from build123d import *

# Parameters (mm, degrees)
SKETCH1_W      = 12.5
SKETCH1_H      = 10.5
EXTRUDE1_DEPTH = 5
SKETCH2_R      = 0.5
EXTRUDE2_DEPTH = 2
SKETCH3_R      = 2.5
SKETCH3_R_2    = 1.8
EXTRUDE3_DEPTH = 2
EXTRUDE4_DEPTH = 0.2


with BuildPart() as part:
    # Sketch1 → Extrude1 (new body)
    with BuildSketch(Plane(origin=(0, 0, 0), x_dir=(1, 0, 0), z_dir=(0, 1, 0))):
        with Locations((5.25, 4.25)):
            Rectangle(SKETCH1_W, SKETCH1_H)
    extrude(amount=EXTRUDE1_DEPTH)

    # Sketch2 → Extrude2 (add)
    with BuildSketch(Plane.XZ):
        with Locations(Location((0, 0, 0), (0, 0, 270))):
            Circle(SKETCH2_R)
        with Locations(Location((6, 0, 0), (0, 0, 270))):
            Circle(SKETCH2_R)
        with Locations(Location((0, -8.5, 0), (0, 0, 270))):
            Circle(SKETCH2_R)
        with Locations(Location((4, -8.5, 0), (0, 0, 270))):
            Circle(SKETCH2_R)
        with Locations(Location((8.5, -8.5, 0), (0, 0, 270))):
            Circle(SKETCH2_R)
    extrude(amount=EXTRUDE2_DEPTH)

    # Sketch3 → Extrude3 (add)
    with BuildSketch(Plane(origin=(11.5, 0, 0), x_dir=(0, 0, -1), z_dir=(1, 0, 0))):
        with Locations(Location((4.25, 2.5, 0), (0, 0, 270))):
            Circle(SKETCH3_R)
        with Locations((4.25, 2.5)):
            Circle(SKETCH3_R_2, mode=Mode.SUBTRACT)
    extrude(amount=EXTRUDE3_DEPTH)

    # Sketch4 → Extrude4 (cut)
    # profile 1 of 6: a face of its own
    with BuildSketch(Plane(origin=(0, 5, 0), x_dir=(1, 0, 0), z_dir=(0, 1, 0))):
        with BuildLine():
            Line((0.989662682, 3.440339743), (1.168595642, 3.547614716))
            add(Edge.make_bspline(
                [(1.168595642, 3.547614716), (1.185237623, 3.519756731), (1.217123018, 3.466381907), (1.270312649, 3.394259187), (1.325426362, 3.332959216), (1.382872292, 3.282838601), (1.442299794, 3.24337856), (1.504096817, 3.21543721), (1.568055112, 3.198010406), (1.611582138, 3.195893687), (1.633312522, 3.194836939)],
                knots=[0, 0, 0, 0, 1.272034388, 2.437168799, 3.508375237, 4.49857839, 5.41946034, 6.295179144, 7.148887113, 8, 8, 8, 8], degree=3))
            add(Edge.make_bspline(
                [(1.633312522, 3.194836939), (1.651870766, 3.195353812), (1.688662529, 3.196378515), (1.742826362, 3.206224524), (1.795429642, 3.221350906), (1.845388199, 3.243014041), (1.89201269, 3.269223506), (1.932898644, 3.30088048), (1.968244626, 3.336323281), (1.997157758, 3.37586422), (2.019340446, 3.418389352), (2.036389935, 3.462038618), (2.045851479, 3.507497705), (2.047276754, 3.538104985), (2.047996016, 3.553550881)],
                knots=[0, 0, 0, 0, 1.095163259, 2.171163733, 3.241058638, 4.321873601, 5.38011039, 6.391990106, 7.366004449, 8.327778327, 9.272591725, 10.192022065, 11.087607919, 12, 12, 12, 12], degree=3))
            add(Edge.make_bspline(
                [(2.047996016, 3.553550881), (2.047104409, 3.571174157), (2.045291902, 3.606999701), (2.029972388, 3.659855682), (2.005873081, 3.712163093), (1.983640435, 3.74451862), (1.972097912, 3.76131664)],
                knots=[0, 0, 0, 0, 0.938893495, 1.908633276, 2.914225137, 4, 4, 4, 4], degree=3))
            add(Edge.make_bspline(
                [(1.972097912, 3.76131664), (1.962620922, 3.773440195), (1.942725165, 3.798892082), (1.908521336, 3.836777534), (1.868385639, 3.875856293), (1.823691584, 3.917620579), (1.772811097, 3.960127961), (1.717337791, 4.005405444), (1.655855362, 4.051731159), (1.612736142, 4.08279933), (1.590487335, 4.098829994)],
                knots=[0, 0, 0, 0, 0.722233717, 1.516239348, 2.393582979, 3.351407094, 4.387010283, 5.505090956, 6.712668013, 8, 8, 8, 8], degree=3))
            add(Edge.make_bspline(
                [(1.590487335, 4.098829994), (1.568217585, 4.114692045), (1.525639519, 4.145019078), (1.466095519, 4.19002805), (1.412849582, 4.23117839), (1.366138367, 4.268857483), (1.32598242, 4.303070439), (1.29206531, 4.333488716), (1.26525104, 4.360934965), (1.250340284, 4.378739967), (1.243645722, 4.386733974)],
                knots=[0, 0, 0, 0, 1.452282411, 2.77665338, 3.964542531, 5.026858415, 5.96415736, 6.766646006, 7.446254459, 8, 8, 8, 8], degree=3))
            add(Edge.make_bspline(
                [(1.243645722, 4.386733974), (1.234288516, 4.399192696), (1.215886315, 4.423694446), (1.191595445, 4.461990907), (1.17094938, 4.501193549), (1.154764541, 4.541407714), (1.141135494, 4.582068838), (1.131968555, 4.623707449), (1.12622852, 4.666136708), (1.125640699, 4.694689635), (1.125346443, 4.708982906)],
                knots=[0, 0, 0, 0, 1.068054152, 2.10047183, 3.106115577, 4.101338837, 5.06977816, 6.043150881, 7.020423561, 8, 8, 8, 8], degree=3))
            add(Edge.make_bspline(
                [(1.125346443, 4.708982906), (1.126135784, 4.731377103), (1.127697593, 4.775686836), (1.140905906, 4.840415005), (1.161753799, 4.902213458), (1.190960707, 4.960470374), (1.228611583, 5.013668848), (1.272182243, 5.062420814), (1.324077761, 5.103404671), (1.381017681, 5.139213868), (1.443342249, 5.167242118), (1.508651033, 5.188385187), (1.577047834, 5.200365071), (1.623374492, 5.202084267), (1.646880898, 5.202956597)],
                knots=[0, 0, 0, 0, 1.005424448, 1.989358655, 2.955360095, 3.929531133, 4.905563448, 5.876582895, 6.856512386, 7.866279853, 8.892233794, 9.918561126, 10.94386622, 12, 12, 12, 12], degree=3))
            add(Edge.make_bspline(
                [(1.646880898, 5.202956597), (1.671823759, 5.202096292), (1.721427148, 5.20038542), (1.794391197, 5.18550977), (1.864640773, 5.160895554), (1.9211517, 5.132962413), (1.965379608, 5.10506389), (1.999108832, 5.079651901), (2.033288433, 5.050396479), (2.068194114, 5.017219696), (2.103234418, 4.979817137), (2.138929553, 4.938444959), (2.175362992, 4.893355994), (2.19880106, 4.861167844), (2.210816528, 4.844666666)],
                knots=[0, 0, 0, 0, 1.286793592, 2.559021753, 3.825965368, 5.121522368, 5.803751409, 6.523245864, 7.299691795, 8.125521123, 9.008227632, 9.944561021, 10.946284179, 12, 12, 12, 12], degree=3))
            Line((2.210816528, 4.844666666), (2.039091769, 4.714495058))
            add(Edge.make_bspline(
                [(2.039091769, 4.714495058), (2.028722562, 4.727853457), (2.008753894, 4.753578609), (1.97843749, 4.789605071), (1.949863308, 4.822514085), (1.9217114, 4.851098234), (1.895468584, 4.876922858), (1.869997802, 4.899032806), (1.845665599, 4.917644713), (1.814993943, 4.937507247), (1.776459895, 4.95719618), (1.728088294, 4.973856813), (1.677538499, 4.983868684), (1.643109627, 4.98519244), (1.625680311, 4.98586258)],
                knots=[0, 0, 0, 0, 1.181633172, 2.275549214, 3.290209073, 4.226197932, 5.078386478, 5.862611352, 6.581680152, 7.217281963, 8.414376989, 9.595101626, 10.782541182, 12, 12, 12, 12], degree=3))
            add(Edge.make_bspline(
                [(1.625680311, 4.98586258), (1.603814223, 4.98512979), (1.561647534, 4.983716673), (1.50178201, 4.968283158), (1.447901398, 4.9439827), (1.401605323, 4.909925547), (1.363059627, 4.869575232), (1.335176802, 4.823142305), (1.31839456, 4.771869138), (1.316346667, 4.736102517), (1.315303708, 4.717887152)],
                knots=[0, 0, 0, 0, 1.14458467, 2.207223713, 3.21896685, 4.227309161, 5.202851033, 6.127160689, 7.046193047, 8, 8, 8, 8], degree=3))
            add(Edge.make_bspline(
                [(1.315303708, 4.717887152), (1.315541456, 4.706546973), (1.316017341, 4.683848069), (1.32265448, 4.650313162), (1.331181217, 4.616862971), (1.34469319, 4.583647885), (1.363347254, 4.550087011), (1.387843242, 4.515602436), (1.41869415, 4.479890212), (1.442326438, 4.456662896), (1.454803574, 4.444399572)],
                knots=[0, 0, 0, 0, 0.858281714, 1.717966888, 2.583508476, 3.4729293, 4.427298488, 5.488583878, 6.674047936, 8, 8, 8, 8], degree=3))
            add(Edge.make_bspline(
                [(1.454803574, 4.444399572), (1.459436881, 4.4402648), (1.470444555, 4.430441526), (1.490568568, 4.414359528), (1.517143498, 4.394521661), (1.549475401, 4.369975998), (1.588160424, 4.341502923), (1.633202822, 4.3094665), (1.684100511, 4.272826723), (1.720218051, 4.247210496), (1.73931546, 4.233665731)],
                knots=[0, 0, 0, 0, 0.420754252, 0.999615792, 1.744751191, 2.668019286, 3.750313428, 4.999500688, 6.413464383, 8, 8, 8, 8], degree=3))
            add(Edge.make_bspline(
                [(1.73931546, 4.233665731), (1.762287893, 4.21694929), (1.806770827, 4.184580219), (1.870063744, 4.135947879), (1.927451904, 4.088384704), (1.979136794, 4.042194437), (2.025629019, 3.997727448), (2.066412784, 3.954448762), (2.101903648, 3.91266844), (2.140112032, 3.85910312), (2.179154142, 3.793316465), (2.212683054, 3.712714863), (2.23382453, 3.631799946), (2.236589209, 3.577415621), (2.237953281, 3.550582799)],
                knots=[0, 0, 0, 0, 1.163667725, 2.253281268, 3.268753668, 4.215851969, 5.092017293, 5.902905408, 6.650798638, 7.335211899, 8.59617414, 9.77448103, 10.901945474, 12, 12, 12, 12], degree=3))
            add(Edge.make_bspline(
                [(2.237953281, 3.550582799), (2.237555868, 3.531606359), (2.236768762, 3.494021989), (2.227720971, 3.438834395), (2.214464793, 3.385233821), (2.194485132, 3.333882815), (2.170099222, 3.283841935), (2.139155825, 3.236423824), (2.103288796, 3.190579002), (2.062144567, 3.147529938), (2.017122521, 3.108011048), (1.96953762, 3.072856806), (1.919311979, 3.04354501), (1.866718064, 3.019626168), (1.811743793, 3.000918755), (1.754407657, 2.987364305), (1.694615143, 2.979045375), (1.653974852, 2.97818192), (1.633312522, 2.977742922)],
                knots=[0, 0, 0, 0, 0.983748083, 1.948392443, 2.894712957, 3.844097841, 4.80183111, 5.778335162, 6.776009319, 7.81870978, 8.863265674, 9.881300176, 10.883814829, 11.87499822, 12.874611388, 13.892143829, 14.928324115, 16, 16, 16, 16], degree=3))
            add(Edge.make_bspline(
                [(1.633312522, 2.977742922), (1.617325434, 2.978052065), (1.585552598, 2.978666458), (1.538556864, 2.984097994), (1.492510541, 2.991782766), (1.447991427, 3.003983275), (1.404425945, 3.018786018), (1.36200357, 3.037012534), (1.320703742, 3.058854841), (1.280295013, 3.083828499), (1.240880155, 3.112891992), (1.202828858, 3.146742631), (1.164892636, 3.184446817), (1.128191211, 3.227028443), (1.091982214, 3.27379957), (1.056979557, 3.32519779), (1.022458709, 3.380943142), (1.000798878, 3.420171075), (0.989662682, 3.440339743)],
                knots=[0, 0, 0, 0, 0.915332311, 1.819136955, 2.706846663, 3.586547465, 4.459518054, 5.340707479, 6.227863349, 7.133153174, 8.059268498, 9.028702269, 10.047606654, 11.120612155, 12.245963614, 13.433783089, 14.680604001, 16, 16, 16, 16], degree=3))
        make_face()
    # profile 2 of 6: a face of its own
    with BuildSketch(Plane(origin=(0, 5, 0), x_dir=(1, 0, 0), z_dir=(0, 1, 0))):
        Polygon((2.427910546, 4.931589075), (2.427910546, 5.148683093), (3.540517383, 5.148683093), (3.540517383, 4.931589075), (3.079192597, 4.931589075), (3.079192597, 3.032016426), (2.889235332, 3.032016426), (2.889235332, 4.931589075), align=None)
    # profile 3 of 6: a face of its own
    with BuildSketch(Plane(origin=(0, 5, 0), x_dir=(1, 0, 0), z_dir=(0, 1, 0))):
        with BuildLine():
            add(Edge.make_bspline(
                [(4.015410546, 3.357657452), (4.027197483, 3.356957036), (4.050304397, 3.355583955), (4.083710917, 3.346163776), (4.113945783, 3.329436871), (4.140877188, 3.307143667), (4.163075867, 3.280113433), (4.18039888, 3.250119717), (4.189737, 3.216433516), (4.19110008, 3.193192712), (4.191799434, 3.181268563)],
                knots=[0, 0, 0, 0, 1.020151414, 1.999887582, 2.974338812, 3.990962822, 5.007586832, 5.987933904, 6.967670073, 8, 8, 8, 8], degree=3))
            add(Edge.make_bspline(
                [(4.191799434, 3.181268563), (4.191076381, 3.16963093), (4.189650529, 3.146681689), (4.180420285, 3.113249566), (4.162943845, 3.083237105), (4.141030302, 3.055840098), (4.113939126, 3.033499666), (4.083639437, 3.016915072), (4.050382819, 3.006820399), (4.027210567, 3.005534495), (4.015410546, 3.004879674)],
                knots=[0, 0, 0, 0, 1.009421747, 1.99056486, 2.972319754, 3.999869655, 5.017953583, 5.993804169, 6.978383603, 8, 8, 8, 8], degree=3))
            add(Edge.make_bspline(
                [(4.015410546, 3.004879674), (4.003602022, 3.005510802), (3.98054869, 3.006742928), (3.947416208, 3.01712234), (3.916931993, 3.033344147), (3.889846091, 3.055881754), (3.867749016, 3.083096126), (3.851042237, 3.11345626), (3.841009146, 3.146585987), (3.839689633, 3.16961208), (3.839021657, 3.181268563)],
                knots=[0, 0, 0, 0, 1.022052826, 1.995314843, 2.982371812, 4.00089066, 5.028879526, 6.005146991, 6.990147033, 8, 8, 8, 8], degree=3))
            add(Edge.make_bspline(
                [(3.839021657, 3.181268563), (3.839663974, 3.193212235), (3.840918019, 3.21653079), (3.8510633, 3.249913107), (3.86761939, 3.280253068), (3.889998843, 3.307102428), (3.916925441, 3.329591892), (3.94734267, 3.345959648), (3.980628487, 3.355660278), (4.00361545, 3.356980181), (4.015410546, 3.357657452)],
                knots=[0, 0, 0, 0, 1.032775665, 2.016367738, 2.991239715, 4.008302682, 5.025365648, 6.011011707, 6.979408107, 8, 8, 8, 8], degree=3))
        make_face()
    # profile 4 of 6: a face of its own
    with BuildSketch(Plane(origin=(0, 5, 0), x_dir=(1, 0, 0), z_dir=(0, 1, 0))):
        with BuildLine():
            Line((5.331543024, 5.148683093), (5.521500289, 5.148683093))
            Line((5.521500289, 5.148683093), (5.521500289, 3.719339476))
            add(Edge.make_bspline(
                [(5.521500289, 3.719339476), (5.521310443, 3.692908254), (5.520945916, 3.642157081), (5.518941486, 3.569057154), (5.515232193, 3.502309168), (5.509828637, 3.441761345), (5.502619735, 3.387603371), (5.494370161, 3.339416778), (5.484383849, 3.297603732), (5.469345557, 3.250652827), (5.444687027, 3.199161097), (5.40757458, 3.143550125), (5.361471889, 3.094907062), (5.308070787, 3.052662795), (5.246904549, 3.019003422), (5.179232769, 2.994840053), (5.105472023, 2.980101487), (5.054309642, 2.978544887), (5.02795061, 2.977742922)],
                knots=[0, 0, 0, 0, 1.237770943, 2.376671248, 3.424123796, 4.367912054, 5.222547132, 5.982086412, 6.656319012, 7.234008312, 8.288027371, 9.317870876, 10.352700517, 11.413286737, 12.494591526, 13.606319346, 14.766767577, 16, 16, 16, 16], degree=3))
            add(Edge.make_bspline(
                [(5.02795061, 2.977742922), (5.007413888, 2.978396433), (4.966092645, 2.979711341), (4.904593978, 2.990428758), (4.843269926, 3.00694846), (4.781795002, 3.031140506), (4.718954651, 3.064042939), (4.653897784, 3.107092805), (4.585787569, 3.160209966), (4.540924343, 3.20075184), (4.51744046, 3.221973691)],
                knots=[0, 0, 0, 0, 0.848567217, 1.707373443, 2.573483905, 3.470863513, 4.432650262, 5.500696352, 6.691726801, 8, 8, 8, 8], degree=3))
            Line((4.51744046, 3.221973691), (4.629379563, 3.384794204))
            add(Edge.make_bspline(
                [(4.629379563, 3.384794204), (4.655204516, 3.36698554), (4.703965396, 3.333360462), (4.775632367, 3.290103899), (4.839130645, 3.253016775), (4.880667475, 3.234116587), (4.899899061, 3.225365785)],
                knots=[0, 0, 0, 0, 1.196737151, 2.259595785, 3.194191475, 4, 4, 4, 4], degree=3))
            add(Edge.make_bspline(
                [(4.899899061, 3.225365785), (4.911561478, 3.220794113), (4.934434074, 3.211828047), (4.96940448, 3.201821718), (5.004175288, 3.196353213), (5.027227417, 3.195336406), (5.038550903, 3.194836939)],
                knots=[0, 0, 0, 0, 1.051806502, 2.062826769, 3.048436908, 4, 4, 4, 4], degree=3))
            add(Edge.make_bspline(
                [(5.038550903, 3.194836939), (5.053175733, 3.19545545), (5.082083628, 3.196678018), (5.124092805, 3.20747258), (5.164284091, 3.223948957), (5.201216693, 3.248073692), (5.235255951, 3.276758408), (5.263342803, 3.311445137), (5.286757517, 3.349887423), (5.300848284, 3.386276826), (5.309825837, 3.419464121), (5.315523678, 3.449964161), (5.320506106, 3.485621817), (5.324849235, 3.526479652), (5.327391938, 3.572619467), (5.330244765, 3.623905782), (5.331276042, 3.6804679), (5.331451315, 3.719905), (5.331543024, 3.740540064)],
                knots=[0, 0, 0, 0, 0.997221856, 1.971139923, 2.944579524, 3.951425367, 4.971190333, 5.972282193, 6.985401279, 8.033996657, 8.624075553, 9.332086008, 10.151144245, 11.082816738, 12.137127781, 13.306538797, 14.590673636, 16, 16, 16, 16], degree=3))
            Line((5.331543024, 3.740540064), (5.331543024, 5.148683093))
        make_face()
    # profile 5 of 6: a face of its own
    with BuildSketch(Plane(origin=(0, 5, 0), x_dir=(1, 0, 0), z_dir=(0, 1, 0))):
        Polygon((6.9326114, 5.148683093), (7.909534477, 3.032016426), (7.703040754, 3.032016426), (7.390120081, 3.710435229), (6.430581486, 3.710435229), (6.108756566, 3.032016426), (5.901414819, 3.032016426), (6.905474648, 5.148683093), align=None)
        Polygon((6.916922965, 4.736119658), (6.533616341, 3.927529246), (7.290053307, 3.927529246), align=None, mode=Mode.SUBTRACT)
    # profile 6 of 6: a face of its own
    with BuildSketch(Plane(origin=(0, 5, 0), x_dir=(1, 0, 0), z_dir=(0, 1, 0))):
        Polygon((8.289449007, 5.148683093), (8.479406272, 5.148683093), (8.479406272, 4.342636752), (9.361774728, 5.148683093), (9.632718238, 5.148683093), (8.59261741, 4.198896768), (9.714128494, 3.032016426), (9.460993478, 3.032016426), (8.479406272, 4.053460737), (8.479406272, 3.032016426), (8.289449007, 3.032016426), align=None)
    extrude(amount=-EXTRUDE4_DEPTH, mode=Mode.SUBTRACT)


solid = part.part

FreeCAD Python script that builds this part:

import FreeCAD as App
import Part
import Sketcher

doc = App.newDocument("Part")
params = doc.addObject("Spreadsheet::Sheet", "Params")
for row, (alias, value) in enumerate([
    ("sketch1_width", "12.5 mm"),
    ("sketch1_height", "10.5 mm"),
    ("pad1_length", "5 mm"),
    ("sketch2_diameter", "1 mm"),
    ("pad2_length", "2 mm"),
    ("sketch3_diameter", "5 mm"),
    ("sketch3_diameter2", "3.6 mm"),
    ("pad3_length", "2 mm"),
    ("pocket1_length", "0.2 mm"),
], start=1):
    params.set(f"A{row}", alias)
    params.set(f"B{row}", "=" + value)
    params.setAlias(f"B{row}", alias)

body = doc.addObject("PartDesign::Body", "Body")

# Sketch on XZ plane
sketch1 = doc.addObject("Sketcher::SketchObject", "Sketch")
body.addObject(sketch1)
sketch1.AttachmentSupport = (doc.XZ_Plane, [""])
sketch1.MapMode = "FlatFace"
sketch1.addGeometry(Part.LineSegment(App.Vector(-1, -10, 0), App.Vector(-1, 1, 0)), False)
sketch1.addGeometry(Part.LineSegment(App.Vector(-1, 1, 0), App.Vector(12, 1, 0)), False)
sketch1.addGeometry(Part.LineSegment(App.Vector(12, 1, 0), App.Vector(12, -10, 0)), False)
sketch1.addGeometry(Part.LineSegment(App.Vector(12, -10, 0), App.Vector(-1, -10, 0)), False)
sketch1.addConstraint(Sketcher.Constraint("Coincident", 0, 2, 1, 1))
sketch1.addConstraint(Sketcher.Constraint("Coincident", 1, 2, 2, 1))
sketch1.addConstraint(Sketcher.Constraint("Coincident", 2, 2, 3, 1))
sketch1.addConstraint(Sketcher.Constraint("Coincident", 3, 2, 0, 1))
sketch1.addConstraint(Sketcher.Constraint("Vertical", 0))
sketch1.addConstraint(Sketcher.Constraint("Horizontal", 1))
sketch1.addConstraint(Sketcher.Constraint("Vertical", 2))
sketch1.addConstraint(Sketcher.Constraint("Horizontal", 3))
sketch1.addConstraint(Sketcher.Constraint("DistanceX", 1, 1, 1, 2, 12.5))
sketch1.addConstraint(Sketcher.Constraint("DistanceY", 0, 1, 0, 2, 10.5))
sketch1.addConstraint(Sketcher.Constraint("DistanceX", 0, 2, -1, 1, 1.0))
sketch1.addConstraint(Sketcher.Constraint("DistanceY", -1, 1, 0, 2, 1.0))
sketch1.setExpression("Constraints[8]", "Params.sketch1_width")
sketch1.setExpression("Constraints[9]", "Params.sketch1_height")
pad1 = doc.addObject("PartDesign::Pad", "Pad")
body.addObject(pad1)
pad1.Profile = sketch1
pad1.setExpression("Length", "Params.pad1_length")
pad1.Reversed = True

# Sketch on XZ plane
sketch2 = doc.addObject("Sketcher::SketchObject", "Sketch001")
body.addObject(sketch2)
sketch2.AttachmentSupport = (doc.XZ_Plane, [""])
sketch2.MapMode = "FlatFace"
sketch2.addGeometry(Part.Circle(App.Vector(0, 0, 0), App.Vector(0, 0, 1), 0.5), False)
sketch2.addGeometry(Part.Circle(App.Vector(6, 0, 0), App.Vector(0, 0, 1), 0.5), False)
sketch2.addGeometry(Part.Circle(App.Vector(0, -8.5, 0), App.Vector(0, 0, 1), 0.5), False)
sketch2.addGeometry(Part.Circle(App.Vector(4, -8.5, 0), App.Vector(0, 0, 1), 0.5), False)
sketch2.addGeometry(Part.Circle(App.Vector(8.5, -8.5, 0), App.Vector(0, 0, 1), 0.5), False)
sketch2.addConstraint(Sketcher.Constraint("Coincident", 0, 3, -1, 1))
sketch2.addConstraint(Sketcher.Constraint("Equal", 0, 1))
sketch2.addConstraint(Sketcher.Constraint("Equal", 1, 2))
sketch2.addConstraint(Sketcher.Constraint("Equal", 2, 3))
sketch2.addConstraint(Sketcher.Constraint("Equal", 3, 4))
sketch2.addConstraint(Sketcher.Constraint("PointOnObject", 1, 3, -1))
sketch2.addConstraint(Sketcher.Constraint("PointOnObject", 2, 3, -2))
sketch2.addConstraint(Sketcher.Constraint("Horizontal", 2, 3, 3, 3))
sketch2.addConstraint(Sketcher.Constraint("Horizontal", 3, 3, 4, 3))
sketch2.addConstraint(Sketcher.Constraint("Diameter", 0, 1.0))
sketch2.addConstraint(Sketcher.Constraint("DistanceX", -1, 1, 1, 3, 6.0))
sketch2.addConstraint(Sketcher.Constraint("DistanceX", -1, 1, 3, 3, 4.0))
sketch2.addConstraint(Sketcher.Constraint("DistanceY", 2, 3, -1, 1, 8.5))
sketch2.addConstraint(Sketcher.Constraint("DistanceX", -1, 1, 4, 3, 8.5))
sketch2.setExpression("Constraints[9]", "Params.sketch2_diameter")
pad2 = doc.addObject("PartDesign::Pad", "Pad001")
body.addObject(pad2)
pad2.Profile = sketch2
pad2.setExpression("Length", "Params.pad2_length")

# Sketch on YZ plane
sketch3 = doc.addObject("Sketcher::SketchObject", "Sketch002")
body.addObject(sketch3)
sketch3.AttachmentSupport = (doc.YZ_Plane, [""])
sketch3.MapMode = "FlatFace"
sketch3.AttachmentOffset = App.Placement(App.Vector(0, 0, 11.5), App.Rotation())
sketch3.addGeometry(Part.Circle(App.Vector(2.5, -4.2, 0), App.Vector(0, 0, 1), 2.5), False)
sketch3.addGeometry(Part.Circle(App.Vector(2.5, -4.2, 0), App.Vector(0, 0, 1), 1.8), False)
sketch3.addConstraint(Sketcher.Constraint("Coincident", 1, 3, 0, 3))
sketch3.addConstraint(Sketcher.Constraint("Diameter", 0, 5.0))
sketch3.addConstraint(Sketcher.Constraint("Diameter", 1, 3.6))
sketch3.addConstraint(Sketcher.Constraint("DistanceX", -1, 1, 0, 3, 2.5))
sketch3.addConstraint(Sketcher.Constraint("DistanceY", 0, 3, -1, 1, 4.25))
sketch3.setExpression("Constraints[1]", "Params.sketch3_diameter")
sketch3.setExpression("Constraints[2]", "Params.sketch3_diameter2")
pad3 = doc.addObject("PartDesign::Pad", "Pad002")
body.addObject(pad3)
pad3.Profile = sketch3
pad3.setExpression("Length", "Params.pad3_length")

# Sketch on XZ plane
sketch4 = doc.addObject("Sketcher::SketchObject", "Sketch003")
body.addObject(sketch4)
sketch4.AttachmentSupport = (doc.XZ_Plane, [""])
sketch4.MapMode = "FlatFace"
sketch4.AttachmentOffset = App.Placement(App.Vector(0, 0, -5), App.Rotation())
sketch4.addGeometry(Part.LineSegment(App.Vector(1.168596, -3.547615, 0), App.Vector(0.989663, -3.44034, 0)), False)
sketch4.addGeometry(Part.BSplineCurve([App.Vector(1.633313, -2.977743, 0), App.Vector(1.617325, -2.978052, 0), App.Vector(1.585553, -2.978666, 0), App.Vector(1.538557, -2.984098, 0), App.Vector(1.492511, -2.991783, 0), App.Vector(1.447991, -3.003983, 0), App.Vector(1.404426, -3.018786, 0), App.Vector(1.362004, -3.037013, 0), App.Vector(1.320704, -3.058855, 0), App.Vector(1.280295, -3.083828, 0), App.Vector(1.24088, -3.112892, 0), App.Vector(1.202829, -3.146743, 0), App.Vector(1.164893, -3.184447, 0), App.Vector(1.128191, -3.227028, 0), App.Vector(1.091982, -3.2738, 0), App.Vector(1.05698, -3.325198, 0), App.Vector(1.022459, -3.380943, 0), App.Vector(1.000799, -3.420171, 0), App.Vector(0.989663, -3.44034, 0)], [4, 1, 1, 1, 1, 1, 1, 1, 1, 1, 1, 1, 1, 1, 1, 1, 4], [0, 0.915332311, 1.819136955, 2.706846663, 3.586547465, 4.459518054, 5.340707479, 6.227863349, 7.133153174, 8.059268498, 9.028702269, 10.047606654, 11.120612155, 12.245963614, 13.433783089, 14.680604001, 16], False, 3, [1, 1, 1, 1, 1, 1, 1, 1, 1, 1, 1, 1, 1, 1, 1, 1, 1, 1, 1], False), False)
sketch4.addGeometry(Part.BSplineCurve([App.Vector(2.237953, -3.550583, 0), App.Vector(2.237556, -3.531606, 0), App.Vector(2.236769, -3.494022, 0), App.Vector(2.227721, -3.438834, 0), App.Vector(2.214465, -3.385234, 0), App.Vector(2.194485, -3.333883, 0), App.Vector(2.170099, -3.283842, 0), App.Vector(2.139156, -3.236424, 0), App.Vector(2.103289, -3.190579, 0), App.Vector(2.062145, -3.14753, 0), App.Vector(2.017123, -3.108011, 0), App.Vector(1.969538, -3.072857, 0), App.Vector(1.919312, -3.043545, 0), App.Vector(1.866718, -3.019626, 0), App.Vector(1.811744, -3.000919, 0), App.Vector(1.754408, -2.987364, 0), App.Vector(1.694615, -2.979045, 0), App.Vector(1.653975, -2.978182, 0), App.Vector(1.633313, -2.977743, 0)], [4, 1, 1, 1, 1, 1, 1, 1, 1, 1, 1, 1, 1, 1, 1, 1, 4], [0, 0.983748083, 1.948392443, 2.894712957, 3.844097841, 4.80183111, 5.778335162, 6.776009319, 7.81870978, 8.863265674, 9.881300176, 10.883814829, 11.87499822, 12.874611388, 13.892143829, 14.928324115, 16], False, 3, [1, 1, 1, 1, 1, 1, 1, 1, 1, 1, 1, 1, 1, 1, 1, 1, 1, 1, 1], False), False)
sketch4.addGeometry(Part.BSplineCurve([App.Vector(1.739315, -4.233666, 0), App.Vector(1.762288, -4.216949, 0), App.Vector(1.806771, -4.18458, 0), App.Vector(1.870064, -4.135948, 0), App.Vector(1.927452, -4.088385, 0), App.Vector(1.979137, -4.042194, 0), App.Vector(2.025629, -3.997727, 0), App.Vector(2.066413, -3.954449, 0), App.Vector(2.101904, -3.912668, 0), App.Vector(2.140112, -3.859103, 0), App.Vector(2.179154, -3.793316, 0), App.Vector(2.212683, -3.712715, 0), App.Vector(2.233825, -3.6318, 0), App.Vector(2.236589, -3.577416, 0), App.Vector(2.237953, -3.550583, 0)], [4, 1, 1, 1, 1, 1, 1, 1, 1, 1, 1, 1, 4], [0, 1.163667725, 2.253281268, 3.268753668, 4.215851969, 5.092017293, 5.902905408, 6.650798638, 7.335211899, 8.59617414, 9.77448103, 10.901945474, 12], False, 3, [1, 1, 1, 1, 1, 1, 1, 1, 1, 1, 1, 1, 1, 1, 1], False), False)
sketch4.addGeometry(Part.BSplineCurve([App.Vector(1.454804, -4.4444, 0), App.Vector(1.459437, -4.440265, 0), App.Vector(1.470445, -4.430442, 0), App.Vector(1.490569, -4.41436, 0), App.Vector(1.517143, -4.394522, 0), App.Vector(1.549475, -4.369976, 0), App.Vector(1.58816, -4.341503, 0), App.Vector(1.633203, -4.309467, 0), App.Vector(1.684101, -4.272827, 0), App.Vector(1.720218, -4.24721, 0), App.Vector(1.739315, -4.233666, 0)], [4, 1, 1, 1, 1, 1, 1, 1, 4], [0, 0.420754252, 0.999615792, 1.744751191, 2.668019286, 3.750313428, 4.999500688, 6.413464383, 8], False, 3, [1, 1, 1, 1, 1, 1, 1, 1, 1, 1, 1], False), False)
sketch4.addGeometry(Part.BSplineCurve([App.Vector(1.315304, -4.717887, 0), App.Vector(1.315541, -4.706547, 0), App.Vector(1.316017, -4.683848, 0), App.Vector(1.322654, -4.650313, 0), App.Vector(1.331181, -4.616863, 0), App.Vector(1.344693, -4.583648, 0), App.Vector(1.363347, -4.550087, 0), App.Vector(1.387843, -4.515602, 0), App.Vector(1.418694, -4.47989, 0), App.Vector(1.442326, -4.456663, 0), App.Vector(1.454804, -4.4444, 0)], [4, 1, 1, 1, 1, 1, 1, 1, 4], [0, 0.858281714, 1.717966888, 2.583508476, 3.4729293, 4.427298488, 5.488583878, 6.674047936, 8], False, 3, [1, 1, 1, 1, 1, 1, 1, 1, 1, 1, 1], False), False)
sketch4.addGeometry(Part.BSplineCurve([App.Vector(1.62568, -4.985863, 0), App.Vector(1.603814, -4.98513, 0), App.Vector(1.561648, -4.983717, 0), App.Vector(1.501782, -4.968283, 0), App.Vector(1.447901, -4.943983, 0), App.Vector(1.401605, -4.909926, 0), App.Vector(1.36306, -4.869575, 0), App.Vector(1.335177, -4.823142, 0), App.Vector(1.318395, -4.771869, 0), App.Vector(1.316347, -4.736103, 0), App.Vector(1.315304, -4.717887, 0)], [4, 1, 1, 1, 1, 1, 1, 1, 4], [0, 1.14458467, 2.207223713, 3.21896685, 4.227309161, 5.202851033, 6.127160689, 7.046193047, 8], False, 3, [1, 1, 1, 1, 1, 1, 1, 1, 1, 1, 1], False), False)
sketch4.addGeometry(Part.BSplineCurve([App.Vector(2.039092, -4.714495, 0), App.Vector(2.028723, -4.727853, 0), App.Vector(2.008754, -4.753579, 0), App.Vector(1.978437, -4.789605, 0), App.Vector(1.949863, -4.822514, 0), App.Vector(1.921711, -4.851098, 0), App.Vector(1.895469, -4.876923, 0), App.Vector(1.869998, -4.899033, 0), App.Vector(1.845666, -4.917645, 0), App.Vector(1.814994, -4.937507, 0), App.Vector(1.77646, -4.957196, 0), App.Vector(1.728088, -4.973857, 0), App.Vector(1.677538, -4.983869, 0), App.Vector(1.64311, -4.985192, 0), App.Vector(1.62568, -4.985863, 0)], [4, 1, 1, 1, 1, 1, 1, 1, 1, 1, 1, 1, 4], [0, 1.181633172, 2.275549214, 3.290209073, 4.226197932, 5.078386478, 5.862611352, 6.581680152, 7.217281963, 8.414376989, 9.595101626, 10.782541182, 12], False, 3, [1, 1, 1, 1, 1, 1, 1, 1, 1, 1, 1, 1, 1, 1, 1], False), False)
sketch4.addGeometry(Part.LineSegment(App.Vector(2.039092, -4.714495, 0), App.Vector(2.210817, -4.844667, 0)), False)
sketch4.addGeometry(Part.BSplineCurve([App.Vector(1.646881, -5.202957, 0), App.Vector(1.671824, -5.202096, 0), App.Vector(1.721427, -5.200385, 0), App.Vector(1.794391, -5.18551, 0), App.Vector(1.864641, -5.160896, 0), App.Vector(1.921152, -5.132962, 0), App.Vector(1.96538, -5.105064, 0), App.Vector(1.999109, -5.079652, 0), App.Vector(2.033288, -5.050396, 0), App.Vector(2.068194, -5.01722, 0), App.Vector(2.103234, -4.979817, 0), App.Vector(2.13893, -4.938445, 0), App.Vector(2.175363, -4.893356, 0), App.Vector(2.198801, -4.861168, 0), App.Vector(2.210817, -4.844667, 0)], [4, 1, 1, 1, 1, 1, 1, 1, 1, 1, 1, 1, 4], [0, 1.286793592, 2.559021753, 3.825965368, 5.121522368, 5.803751409, 6.523245864, 7.299691795, 8.125521123, 9.008227632, 9.944561021, 10.946284179, 12], False, 3, [1, 1, 1, 1, 1, 1, 1, 1, 1, 1, 1, 1, 1, 1, 1], False), False)
sketch4.addGeometry(Part.BSplineCurve([App.Vector(1.125346, -4.708983, 0), App.Vector(1.126136, -4.731377, 0), App.Vector(1.127698, -4.775687, 0), App.Vector(1.140906, -4.840415, 0), App.Vector(1.161754, -4.902213, 0), App.Vector(1.190961, -4.96047, 0), App.Vector(1.228612, -5.013669, 0), App.Vector(1.272182, -5.062421, 0), App.Vector(1.324078, -5.103405, 0), App.Vector(1.381018, -5.139214, 0), App.Vector(1.443342, -5.167242, 0), App.Vector(1.508651, -5.188385, 0), App.Vector(1.577048, -5.200365, 0), App.Vector(1.623374, -5.202084, 0), App.Vector(1.646881, -5.202957, 0)], [4, 1, 1, 1, 1, 1, 1, 1, 1, 1, 1, 1, 4], [0, 1.005424448, 1.989358655, 2.955360095, 3.929531133, 4.905563448, 5.876582895, 6.856512386, 7.866279853, 8.892233794, 9.918561126, 10.94386622, 12], False, 3, [1, 1, 1, 1, 1, 1, 1, 1, 1, 1, 1, 1, 1, 1, 1], False), False)
sketch4.addGeometry(Part.BSplineCurve([App.Vector(1.243646, -4.386734, 0), App.Vector(1.234289, -4.399193, 0), App.Vector(1.215886, -4.423694, 0), App.Vector(1.191595, -4.461991, 0), App.Vector(1.170949, -4.501194, 0), App.Vector(1.154765, -4.541408, 0), App.Vector(1.141135, -4.582069, 0), App.Vector(1.131969, -4.623707, 0), App.Vector(1.126229, -4.666137, 0), App.Vector(1.125641, -4.69469, 0), App.Vector(1.125346, -4.708983, 0)], [4, 1, 1, 1, 1, 1, 1, 1, 4], [0, 1.068054152, 2.10047183, 3.106115577, 4.101338837, 5.06977816, 6.043150881, 7.020423561, 8], False, 3, [1, 1, 1, 1, 1, 1, 1, 1, 1, 1, 1], False), False)
sketch4.addGeometry(Part.BSplineCurve([App.Vector(1.590487, -4.09883, 0), App.Vector(1.568218, -4.114692, 0), App.Vector(1.52564, -4.145019, 0), App.Vector(1.466096, -4.190028, 0), App.Vector(1.41285, -4.231178, 0), App.Vector(1.366138, -4.268857, 0), App.Vector(1.325982, -4.30307, 0), App.Vector(1.292065, -4.333489, 0), App.Vector(1.265251, -4.360935, 0), App.Vector(1.25034, -4.37874, 0), App.Vector(1.243646, -4.386734, 0)], [4, 1, 1, 1, 1, 1, 1, 1, 4], [0, 1.452282411, 2.77665338, 3.964542531, 5.026858415, 5.96415736, 6.766646006, 7.446254459, 8], False, 3, [1, 1, 1, 1, 1, 1, 1, 1, 1, 1, 1], False), False)
sketch4.addGeometry(Part.BSplineCurve([App.Vector(1.972098, -3.761317, 0), App.Vector(1.962621, -3.77344, 0), App.Vector(1.942725, -3.798892, 0), App.Vector(1.908521, -3.836778, 0), App.Vector(1.868386, -3.875856, 0), App.Vector(1.823692, -3.917621, 0), App.Vector(1.772811, -3.960128, 0), App.Vector(1.717338, -4.005405, 0), App.Vector(1.655855, -4.051731, 0), App.Vector(1.612736, -4.082799, 0), App.Vector(1.590487, -4.09883, 0)], [4, 1, 1, 1, 1, 1, 1, 1, 4], [0, 0.722233717, 1.516239348, 2.393582979, 3.351407094, 4.387010283, 5.505090956, 6.712668013, 8], False, 3, [1, 1, 1, 1, 1, 1, 1, 1, 1, 1, 1], False), False)
sketch4.addGeometry(Part.BSplineCurve([App.Vector(2.047996, -3.553551, 0), App.Vector(2.047104, -3.571174, 0), App.Vector(2.045292, -3.607, 0), App.Vector(2.029972, -3.659856, 0), App.Vector(2.005873, -3.712163, 0), App.Vector(1.98364, -3.744519, 0), App.Vector(1.972098, -3.761317, 0)], [4, 1, 1, 1, 4], [0, 0.938893495, 1.908633276, 2.914225137, 4], False, 3, [1, 1, 1, 1, 1, 1, 1], False), False)
sketch4.addGeometry(Part.BSplineCurve([App.Vector(1.633313, -3.194837, 0), App.Vector(1.651871, -3.195354, 0), App.Vector(1.688663, -3.196379, 0), App.Vector(1.742826, -3.206225, 0), App.Vector(1.79543, -3.221351, 0), App.Vector(1.845388, -3.243014, 0), App.Vector(1.892013, -3.269224, 0), App.Vector(1.932899, -3.30088, 0), App.Vector(1.968245, -3.336323, 0), App.Vector(1.997158, -3.375864, 0), App.Vector(2.01934, -3.418389, 0), App.Vector(2.03639, -3.462039, 0), App.Vector(2.045851, -3.507498, 0), App.Vector(2.047277, -3.538105, 0), App.Vector(2.047996, -3.553551, 0)], [4, 1, 1, 1, 1, 1, 1, 1, 1, 1, 1, 1, 4], [0, 1.095163259, 2.171163733, 3.241058638, 4.321873601, 5.38011039, 6.391990106, 7.366004449, 8.327778327, 9.272591725, 10.192022065, 11.087607919, 12], False, 3, [1, 1, 1, 1, 1, 1, 1, 1, 1, 1, 1, 1, 1, 1, 1], False), False)
sketch4.addGeometry(Part.BSplineCurve([App.Vector(1.168596, -3.547615, 0), App.Vector(1.185238, -3.519757, 0), App.Vector(1.217123, -3.466382, 0), App.Vector(1.270313, -3.394259, 0), App.Vector(1.325426, -3.332959, 0), App.Vector(1.382872, -3.282839, 0), App.Vector(1.4423, -3.243379, 0), App.Vector(1.504097, -3.215437, 0), App.Vector(1.568055, -3.19801, 0), App.Vector(1.611582, -3.195894, 0), App.Vector(1.633313, -3.194837, 0)], [4, 1, 1, 1, 1, 1, 1, 1, 4], [0, 1.272034388, 2.437168799, 3.508375237, 4.49857839, 5.41946034, 6.295179144, 7.148887113, 8], False, 3, [1, 1, 1, 1, 1, 1, 1, 1, 1, 1, 1], False), False)
sketch4.addGeometry(Part.LineSegment(App.Vector(2.427911, -5.148683, 0), App.Vector(2.427911, -4.931589, 0)), False)
sketch4.addGeometry(Part.LineSegment(App.Vector(2.427911, -4.931589, 0), App.Vector(2.889235, -4.931589, 0)), False)
sketch4.addGeometry(Part.LineSegment(App.Vector(2.889235, -4.931589, 0), App.Vector(2.889235, -3.032016, 0)), False)
sketch4.addGeometry(Part.LineSegment(App.Vector(2.889235, -3.032016, 0), App.Vector(3.079193, -3.032016, 0)), False)
sketch4.addGeometry(Part.LineSegment(App.Vector(3.079193, -3.032016, 0), App.Vector(3.079193, -4.931589, 0)), False)
sketch4.addGeometry(Part.LineSegment(App.Vector(3.079193, -4.931589, 0), App.Vector(3.540517, -4.931589, 0)), False)
sketch4.addGeometry(Part.LineSegment(App.Vector(3.540517, -4.931589, 0), App.Vector(3.540517, -5.148683, 0)), False)
sketch4.addGeometry(Part.LineSegment(App.Vector(3.540517, -5.148683, 0), App.Vector(2.427911, -5.148683, 0)), False)
sketch4.addGeometry(Part.BSplineCurve([App.Vector(4.015411, -3.357657, 0), App.Vector(4.027197, -3.356957, 0), App.Vector(4.050304, -3.355584, 0), App.Vector(4.083711, -3.346164, 0), App.Vector(4.113946, -3.329437, 0), App.Vector(4.140877, -3.307144, 0), App.Vector(4.163076, -3.280113, 0), App.Vector(4.180399, -3.25012, 0), App.Vector(4.189737, -3.216434, 0), App.Vector(4.1911, -3.193193, 0), App.Vector(4.191799, -3.181269, 0)], [4, 1, 1, 1, 1, 1, 1, 1, 4], [0, 1.020151414, 1.999887582, 2.974338812, 3.990962822, 5.007586832, 5.987933904, 6.967670073, 8], False, 3, [1, 1, 1, 1, 1, 1, 1, 1, 1, 1, 1], False), False)
sketch4.addGeometry(Part.BSplineCurve([App.Vector(3.839022, -3.181269, 0), App.Vector(3.839664, -3.193212, 0), App.Vector(3.840918, -3.216531, 0), App.Vector(3.851063, -3.249913, 0), App.Vector(3.867619, -3.280253, 0), App.Vector(3.889999, -3.307102, 0), App.Vector(3.916925, -3.329592, 0), App.Vector(3.947343, -3.34596, 0), App.Vector(3.980628, -3.35566, 0), App.Vector(4.003615, -3.35698, 0), App.Vector(4.015411, -3.357657, 0)], [4, 1, 1, 1, 1, 1, 1, 1, 4], [0, 1.032775665, 2.016367738, 2.991239715, 4.008302682, 5.025365648, 6.011011707, 6.979408107, 8], False, 3, [1, 1, 1, 1, 1, 1, 1, 1, 1, 1, 1], False), False)
sketch4.addGeometry(Part.BSplineCurve([App.Vector(4.015411, -3.00488, 0), App.Vector(4.003602, -3.005511, 0), App.Vector(3.980549, -3.006743, 0), App.Vector(3.947416, -3.017122, 0), App.Vector(3.916932, -3.033344, 0), App.Vector(3.889846, -3.055882, 0), App.Vector(3.867749, -3.083096, 0), App.Vector(3.851042, -3.113456, 0), App.Vector(3.841009, -3.146586, 0), App.Vector(3.83969, -3.169612, 0), App.Vector(3.839022, -3.181269, 0)], [4, 1, 1, 1, 1, 1, 1, 1, 4], [0, 1.022052826, 1.995314843, 2.982371812, 4.00089066, 5.028879526, 6.005146991, 6.990147033, 8], False, 3, [1, 1, 1, 1, 1, 1, 1, 1, 1, 1, 1], False), False)
sketch4.addGeometry(Part.BSplineCurve([App.Vector(4.191799, -3.181269, 0), App.Vector(4.191076, -3.169631, 0), App.Vector(4.189651, -3.146682, 0), App.Vector(4.18042, -3.11325, 0), App.Vector(4.162944, -3.083237, 0), App.Vector(4.14103, -3.05584, 0), App.Vector(4.113939, -3.0335, 0), App.Vector(4.083639, -3.016915, 0), App.Vector(4.050383, -3.00682, 0), App.Vector(4.027211, -3.005534, 0), App.Vector(4.015411, -3.00488, 0)], [4, 1, 1, 1, 1, 1, 1, 1, 4], [0, 1.009421747, 1.99056486, 2.972319754, 3.999869655, 5.017953583, 5.993804169, 6.978383603, 8], False, 3, [1, 1, 1, 1, 1, 1, 1, 1, 1, 1, 1], False), False)
sketch4.addGeometry(Part.LineSegment(App.Vector(5.5215, -5.148683, 0), App.Vector(5.331543, -5.148683, 0)), False)
sketch4.addGeometry(Part.LineSegment(App.Vector(5.331543, -5.148683, 0), App.Vector(5.331543, -3.74054, 0)), False)
sketch4.addGeometry(Part.BSplineCurve([App.Vector(5.038551, -3.194837, 0), App.Vector(5.053176, -3.195455, 0), App.Vector(5.082084, -3.196678, 0), App.Vector(5.124093, -3.207473, 0), App.Vector(5.164284, -3.223949, 0), App.Vector(5.201217, -3.248074, 0), App.Vector(5.235256, -3.276758, 0), App.Vector(5.263343, -3.311445, 0), App.Vector(5.286758, -3.349887, 0), App.Vector(5.300848, -3.386277, 0), App.Vector(5.309826, -3.419464, 0), App.Vector(5.315524, -3.449964, 0), App.Vector(5.320506, -3.485622, 0), App.Vector(5.324849, -3.52648, 0), App.Vector(5.327392, -3.572619, 0), App.Vector(5.330245, -3.623906, 0), App.Vector(5.331276, -3.680468, 0), App.Vector(5.331451, -3.719905, 0), App.Vector(5.331543, -3.74054, 0)], [4, 1, 1, 1, 1, 1, 1, 1, 1, 1, 1, 1, 1, 1, 1, 1, 4], [0, 0.997221856, 1.971139923, 2.944579524, 3.951425367, 4.971190333, 5.972282193, 6.985401279, 8.033996657, 8.624075553, 9.332086008, 10.151144245, 11.082816738, 12.137127781, 13.306538797, 14.590673636, 16], False, 3, [1, 1, 1, 1, 1, 1, 1, 1, 1, 1, 1, 1, 1, 1, 1, 1, 1, 1, 1], False), False)
sketch4.addGeometry(Part.BSplineCurve([App.Vector(4.899899, -3.225366, 0), App.Vector(4.911561, -3.220794, 0), App.Vector(4.934434, -3.211828, 0), App.Vector(4.969404, -3.201822, 0), App.Vector(5.004175, -3.196353, 0), App.Vector(5.027227, -3.195336, 0), App.Vector(5.038551, -3.194837, 0)], [4, 1, 1, 1, 4], [0, 1.051806502, 2.062826769, 3.048436908, 4], False, 3, [1, 1, 1, 1, 1, 1, 1], False), False)
sketch4.addGeometry(Part.BSplineCurve([App.Vector(4.62938, -3.384794, 0), App.Vector(4.655205, -3.366986, 0), App.Vector(4.703965, -3.33336, 0), App.Vector(4.775632, -3.290104, 0), App.Vector(4.839131, -3.253017, 0), App.Vector(4.880667, -3.234117, 0), App.Vector(4.899899, -3.225366, 0)], [4, 1, 1, 1, 4], [0, 1.196737151, 2.259595785, 3.194191475, 4], False, 3, [1, 1, 1, 1, 1, 1, 1], False), False)
sketch4.addGeometry(Part.LineSegment(App.Vector(4.62938, -3.384794, 0), App.Vector(4.51744, -3.221974, 0)), False)
sketch4.addGeometry(Part.BSplineCurve([App.Vector(5.027951, -2.977743, 0), App.Vector(5.007414, -2.978396, 0), App.Vector(4.966093, -2.979711, 0), App.Vector(4.904594, -2.990429, 0), App.Vector(4.84327, -3.006948, 0), App.Vector(4.781795, -3.031141, 0), App.Vector(4.718955, -3.064043, 0), App.Vector(4.653898, -3.107093, 0), App.Vector(4.585788, -3.16021, 0), App.Vector(4.540924, -3.200752, 0), App.Vector(4.51744, -3.221974, 0)], [4, 1, 1, 1, 1, 1, 1, 1, 4], [0, 0.848567217, 1.707373443, 2.573483905, 3.470863513, 4.432650262, 5.500696352, 6.691726801, 8], False, 3, [1, 1, 1, 1, 1, 1, 1, 1, 1, 1, 1], False), False)
sketch4.addGeometry(Part.BSplineCurve([App.Vector(5.5215, -3.719339, 0), App.Vector(5.52131, -3.692908, 0), App.Vector(5.520946, -3.642157, 0), App.Vector(5.518941, -3.569057, 0), App.Vector(5.515232, -3.502309, 0), App.Vector(5.509829, -3.441761, 0), App.Vector(5.50262, -3.387603, 0), App.Vector(5.49437, -3.339417, 0), App.Vector(5.484384, -3.297604, 0), App.Vector(5.469346, -3.250653, 0), App.Vector(5.444687, -3.199161, 0), App.Vector(5.407575, -3.14355, 0), App.Vector(5.361472, -3.094907, 0), App.Vector(5.308071, -3.052663, 0), App.Vector(5.246905, -3.019003, 0), App.Vector(5.179233, -2.99484, 0), App.Vector(5.105472, -2.980101, 0), App.Vector(5.05431, -2.978545, 0), App.Vector(5.027951, -2.977743, 0)], [4, 1, 1, 1, 1, 1, 1, 1, 1, 1, 1, 1, 1, 1, 1, 1, 4], [0, 1.237770943, 2.376671248, 3.424123796, 4.367912054, 5.222547132, 5.982086412, 6.656319012, 7.234008312, 8.288027371, 9.317870876, 10.352700517, 11.413286737, 12.494591526, 13.606319346, 14.766767577, 16], False, 3, [1, 1, 1, 1, 1, 1, 1, 1, 1, 1, 1, 1, 1, 1, 1, 1, 1, 1, 1], False), False)
sketch4.addGeometry(Part.LineSegment(App.Vector(5.5215, -3.719339, 0), App.Vector(5.5215, -5.148683, 0)), False)
sketch4.addGeometry(Part.LineSegment(App.Vector(7.909534, -3.032016, 0), App.Vector(6.932611, -5.148683, 0)), False)
sketch4.addGeometry(Part.LineSegment(App.Vector(6.932611, -5.148683, 0), App.Vector(6.905475, -5.148683, 0)), False)
sketch4.addGeometry(Part.LineSegment(App.Vector(6.905475, -5.148683, 0), App.Vector(5.901415, -3.032016, 0)), False)
sketch4.addGeometry(Part.LineSegment(App.Vector(5.901415, -3.032016, 0), App.Vector(6.108757, -3.032016, 0)), False)
sketch4.addGeometry(Part.LineSegment(App.Vector(6.108757, -3.032016, 0), App.Vector(6.430581, -3.710435, 0)), False)
sketch4.addGeometry(Part.LineSegment(App.Vector(6.430581, -3.710435, 0), App.Vector(7.39012, -3.710435, 0)), False)
sketch4.addGeometry(Part.LineSegment(App.Vector(7.39012, -3.710435, 0), App.Vector(7.703041, -3.032016, 0)), False)
sketch4.addGeometry(Part.LineSegment(App.Vector(7.703041, -3.032016, 0), App.Vector(7.909534, -3.032016, 0)), False)
sketch4.addGeometry(Part.LineSegment(App.Vector(6.916923, -4.73612, 0), App.Vector(7.290053, -3.927529, 0)), False)
sketch4.addGeometry(Part.LineSegment(App.Vector(7.290053, -3.927529, 0), App.Vector(6.533616, -3.927529, 0)), False)
sketch4.addGeometry(Part.LineSegment(App.Vector(6.533616, -3.927529, 0), App.Vector(6.916923, -4.73612, 0)), False)
sketch4.addGeometry(Part.LineSegment(App.Vector(8.479406, -5.148683, 0), App.Vector(8.289449, -5.148683, 0)), False)
sketch4.addGeometry(Part.LineSegment(App.Vector(8.289449, -5.148683, 0), App.Vector(8.289449, -3.032016, 0)), False)
sketch4.addGeometry(Part.LineSegment(App.Vector(8.289449, -3.032016, 0), App.Vector(8.479406, -3.032016, 0)), False)
sketch4.addGeometry(Part.LineSegment(App.Vector(8.479406, -3.032016, 0), App.Vector(8.479406, -4.053461, 0)), False)
sketch4.addGeometry(Part.LineSegment(App.Vector(8.479406, -4.053461, 0), App.Vector(9.460993, -3.032016, 0)), False)
sketch4.addGeometry(Part.LineSegment(App.Vector(9.460993, -3.032016, 0), App.Vector(9.714128, -3.032016, 0)), False)
sketch4.addGeometry(Part.LineSegment(App.Vector(9.714128, -3.032016, 0), App.Vector(8.592617, -4.198897, 0)), False)
sketch4.addGeometry(Part.LineSegment(App.Vector(8.592617, -4.198897, 0), App.Vector(9.632718, -5.148683, 0)), False)
sketch4.addGeometry(Part.LineSegment(App.Vector(9.632718, -5.148683, 0), App.Vector(9.361775, -5.148683, 0)), False)
sketch4.addGeometry(Part.LineSegment(App.Vector(9.361775, -5.148683, 0), App.Vector(8.479406, -4.342637, 0)), False)
sketch4.addGeometry(Part.LineSegment(App.Vector(8.479406, -4.342637, 0), App.Vector(8.479406, -5.148683, 0)), False)
sketch4.addConstraint(Sketcher.Constraint("Block", 1))
sketch4.addConstraint(Sketcher.Constraint("Block", 2))
sketch4.addConstraint(Sketcher.Constraint("Block", 3))
sketch4.addConstraint(Sketcher.Constraint("Block", 4))
sketch4.addConstraint(Sketcher.Constraint("Block", 5))
sketch4.addConstraint(Sketcher.Constraint("Block", 6))
sketch4.addConstraint(Sketcher.Constraint("Block", 7))
sketch4.addConstraint(Sketcher.Constraint("Block", 9))
sketch4.addConstraint(Sketcher.Constraint("Block", 10))
sketch4.addConstraint(Sketcher.Constraint("Block", 11))
sketch4.addConstraint(Sketcher.Constraint("Block", 12))
sketch4.addConstraint(Sketcher.Constraint("Block", 13))
sketch4.addConstraint(Sketcher.Constraint("Block", 14))
sketch4.addConstraint(Sketcher.Constraint("Block", 15))
sketch4.addConstraint(Sketcher.Constraint("Block", 16))
sketch4.addConstraint(Sketcher.Constraint("Block", 25))
sketch4.addConstraint(Sketcher.Constraint("Block", 26))
sketch4.addConstraint(Sketcher.Constraint("Block", 27))
sketch4.addConstraint(Sketcher.Constraint("Block", 28))
sketch4.addConstraint(Sketcher.Constraint("Block", 31))
sketch4.addConstraint(Sketcher.Constraint("Block", 32))
sketch4.addConstraint(Sketcher.Constraint("Block", 33))
sketch4.addConstraint(Sketcher.Constraint("Block", 35))
sketch4.addConstraint(Sketcher.Constraint("Block", 36))
sketch4.addConstraint(Sketcher.Constraint("Coincident", 0, 2, 1, 2))
sketch4.addConstraint(Sketcher.Constraint("Coincident", 7, 1, 8, 1))
sketch4.addConstraint(Sketcher.Constraint("Coincident", 8, 2, 9, 2))
sketch4.addConstraint(Sketcher.Constraint("Coincident", 16, 1, 0, 1))
sketch4.addConstraint(Sketcher.Constraint("Coincident", 17, 2, 18, 1))
sketch4.addConstraint(Sketcher.Constraint("Coincident", 18, 2, 19, 1))
sketch4.addConstraint(Sketcher.Constraint("Coincident", 19, 2, 20, 1))
sketch4.addConstraint(Sketcher.Constraint("Coincident", 20, 2, 21, 1))
sketch4.addConstraint(Sketcher.Constraint("Coincident", 21, 2, 22, 1))
sketch4.addConstraint(Sketcher.Constraint("Coincident", 22, 2, 23, 1))
sketch4.addConstraint(Sketcher.Constraint("Coincident", 23, 2, 24, 1))
sketch4.addConstraint(Sketcher.Constraint("Coincident", 24, 2, 17, 1))
sketch4.addConstraint(Sketcher.Constraint("Coincident", 29, 2, 30, 1))
sketch4.addConstraint(Sketcher.Constraint("Coincident", 30, 2, 31, 2))
sketch4.addConstraint(Sketcher.Constraint("Coincident", 33, 1, 34, 1))
sketch4.addConstraint(Sketcher.Constraint("Coincident", 34, 2, 35, 2))
sketch4.addConstraint(Sketcher.Constraint("Coincident", 36, 1, 37, 1))
sketch4.addConstraint(Sketcher.Constraint("Coincident", 37, 2, 29, 1))
sketch4.addConstraint(Sketcher.Constraint("Coincident", 38, 2, 39, 1))
sketch4.addConstraint(Sketcher.Constraint("Coincident", 39, 2, 40, 1))
sketch4.addConstraint(Sketcher.Constraint("Coincident", 40, 2, 41, 1))
sketch4.addConstraint(Sketcher.Constraint("Coincident", 41, 2, 42, 1))
sketch4.addConstraint(Sketcher.Constraint("Coincident", 42, 2, 43, 1))
sketch4.addConstraint(Sketcher.Constraint("Coincident", 43, 2, 44, 1))
sketch4.addConstraint(Sketcher.Constraint("Coincident", 44, 2, 45, 1))
sketch4.addConstraint(Sketcher.Constraint("Coincident", 45, 2, 38, 1))
sketch4.addConstraint(Sketcher.Constraint("Coincident", 46, 2, 47, 1))
sketch4.addConstraint(Sketcher.Constraint("Coincident", 47, 2, 48, 1))
sketch4.addConstraint(Sketcher.Constraint("Coincident", 48, 2, 46, 1))
sketch4.addConstraint(Sketcher.Constraint("Coincident", 49, 2, 50, 1))
sketch4.addConstraint(Sketcher.Constraint("Coincident", 50, 2, 51, 1))
sketch4.addConstraint(Sketcher.Constraint("Coincident", 51, 2, 52, 1))
sketch4.addConstraint(Sketcher.Constraint("Coincident", 52, 2, 53, 1))
sketch4.addConstraint(Sketcher.Constraint("Coincident", 53, 2, 54, 1))
sketch4.addConstraint(Sketcher.Constraint("Coincident", 54, 2, 55, 1))
sketch4.addConstraint(Sketcher.Constraint("Coincident", 55, 2, 56, 1))
sketch4.addConstraint(Sketcher.Constraint("Coincident", 56, 2, 57, 1))
sketch4.addConstraint(Sketcher.Constraint("Coincident", 57, 2, 58, 1))
sketch4.addConstraint(Sketcher.Constraint("Coincident", 58, 2, 59, 1))
sketch4.addConstraint(Sketcher.Constraint("Coincident", 59, 2, 49, 1))
sketch4.addConstraint(Sketcher.Constraint("Vertical", 17))
sketch4.addConstraint(Sketcher.Constraint("Horizontal", 18))
sketch4.addConstraint(Sketcher.Constraint("Vertical", 19))
sketch4.addConstraint(Sketcher.Constraint("Horizontal", 20))
sketch4.addConstraint(Sketcher.Constraint("Vertical", 21))
sketch4.addConstraint(Sketcher.Constraint("Horizontal", 22))
sketch4.addConstraint(Sketcher.Constraint("Vertical", 23))
sketch4.addConstraint(Sketcher.Constraint("Horizontal", 24))
sketch4.addConstraint(Sketcher.Constraint("Horizontal", 29))
sketch4.addConstraint(Sketcher.Constraint("Vertical", 30))
sketch4.addConstraint(Sketcher.Constraint("Vertical", 37))
sketch4.addConstraint(Sketcher.Constraint("Horizontal", 39))
sketch4.addConstraint(Sketcher.Constraint("Horizontal", 41))
sketch4.addConstraint(Sketcher.Constraint("Horizontal", 43))
sketch4.addConstraint(Sketcher.Constraint("Horizontal", 45))
sketch4.addConstraint(Sketcher.Constraint("Horizontal", 47))
sketch4.addConstraint(Sketcher.Constraint("Horizontal", 49))
sketch4.addConstraint(Sketcher.Constraint("Vertical", 50))
sketch4.addConstraint(Sketcher.Constraint("Horizontal", 51))
sketch4.addConstraint(Sketcher.Constraint("Vertical", 52))
sketch4.addConstraint(Sketcher.Constraint("Horizontal", 54))
sketch4.addConstraint(Sketcher.Constraint("Horizontal", 57))
sketch4.addConstraint(Sketcher.Constraint("Vertical", 59))
sketch4.addConstraint(Sketcher.Constraint("DistanceX", 41, 1, 41, 2, 0.207342))
sketch4.addConstraint(Sketcher.Constraint("DistanceX", 43, 1, 43, 2, 0.959539))
sketch4.addConstraint(Sketcher.Constraint("DistanceX", 8, 2, 22, 2, 1.329701))
sketch4.addConstraint(Sketcher.Constraint("DistanceX", 40, 2, 47, 2, 0.632202))
sketch4.addConstraint(Sketcher.Constraint("DistanceX", 55, 2, 56, 2, 1.040101))
sketch4.addConstraint(Sketcher.Constraint("DistanceY", 58, 2, 43, 2, 0.632202))
sketch4.addConstraint(Sketcher.Constraint("Distance", 42, 0.750882))
sketch4.addConstraint(Sketcher.Constraint("Distance", 44, 0.747109))
sketch4.addConstraint(Sketcher.Constraint("Distance", 46, 0.890531))
sketch4.addConstraint(Sketcher.Constraint("Distance", 56, 1.408511))
sketch4.addConstraint(Sketcher.Constraint("Distance", 58, 1.195109))
sketch4.addConstraint(Sketcher.Constraint("DistanceX", 18, 1, 18, 2, 0.461325))
sketch4.addConstraint(Sketcher.Constraint("DistanceX", 20, 1, 20, 2, 0.189957))
sketch4.addConstraint(Sketcher.Constraint("DistanceX", 22, 1, 22, 2, 0.461325))
sketch4.addConstraint(Sketcher.Constraint("DistanceX", 39, 2, 39, 1, 0.027137))
sketch4.addConstraint(Sketcher.Constraint("DistanceX", 45, 1, 45, 2, 0.206494))
sketch4.addConstraint(Sketcher.Constraint("DistanceX", 47, 2, 47, 1, 0.756437))
sketch4.addConstraint(Sketcher.Constraint("DistanceX", 49, 2, 49, 1, 0.189957))
sketch4.addConstraint(Sketcher.Constraint("DistanceX", 51, 1, 51, 2, 0.189957))
sketch4.addConstraint(Sketcher.Constraint("DistanceX", 54, 1, 54, 2, 0.253135))
sketch4.addConstraint(Sketcher.Constraint("DistanceX", 57, 2, 57, 1, 0.270944))
sketch4.addConstraint(Sketcher.Constraint("DistanceY", 17, 1, 17, 2, 0.217094))
sketch4.addConstraint(Sketcher.Constraint("DistanceY", 19, 1, 19, 2, 1.899573))
sketch4.addConstraint(Sketcher.Constraint("DistanceY", 21, 2, 21, 1, 1.899573))
sketch4.addConstraint(Sketcher.Constraint("DistanceY", 30, 1, 30, 2, 1.408143))
sketch4.addConstraint(Sketcher.Constraint("DistanceY", 50, 1, 50, 2, 2.116667))
sketch4.addConstraint(Sketcher.Constraint("DistanceY", 52, 2, 52, 1, 1.021444))
sketch4.addConstraint(Sketcher.Constraint("DistanceY", 59, 2, 59, 1, 0.806046))
sketch4.addConstraint(Sketcher.Constraint("DistanceY", 17, 2, -1, 1, 4.931589))
sketch4.addConstraint(Sketcher.Constraint("DistanceX", -1, 1, 38, 2, 6.932611))
sketch4.addConstraint(Sketcher.Constraint("DistanceX", -1, 1, 42, 2, 6.430581))
sketch4.addConstraint(Sketcher.Constraint("DistanceX", -1, 1, 44, 2, 7.703041))
sketch4.addConstraint(Sketcher.Constraint("DistanceY", 46, 2, -1, 1, 3.927529))
sketch4.addConstraint(Sketcher.Constraint("DistanceY", 48, 2, -1, 1, 4.73612))
sketch4.addConstraint(Sketcher.Constraint("DistanceX", -1, 1, 49, 2, 8.289449))
sketch4.addConstraint(Sketcher.Constraint("DistanceY", 52, 2, -1, 1, 4.053461))
sketch4.addConstraint(Sketcher.Constraint("DistanceX", -1, 1, 54, 2, 9.714128))
sketch4.addConstraint(Sketcher.Constraint("DistanceX", -1, 1, 56, 2, 9.632718))
sketch4.addConstraint(Sketcher.Constraint("DistanceY", 38, 2, 34, 2, 1.926709))
sketch4.addConstraint(Sketcher.Constraint("DistanceX", 30, 2, 40, 2, 0.569872))
sketch4.addConstraint(Sketcher.Constraint("Distance", 53, 1.416638))
pocket1 = doc.addObject("PartDesign::Pocket", "Pocket")
body.addObject(pocket1)
pocket1.Profile = sketch4
pocket1.setExpression("Length", "Params.pocket1_length")
pocket1.Reversed = True

doc.recompute()
